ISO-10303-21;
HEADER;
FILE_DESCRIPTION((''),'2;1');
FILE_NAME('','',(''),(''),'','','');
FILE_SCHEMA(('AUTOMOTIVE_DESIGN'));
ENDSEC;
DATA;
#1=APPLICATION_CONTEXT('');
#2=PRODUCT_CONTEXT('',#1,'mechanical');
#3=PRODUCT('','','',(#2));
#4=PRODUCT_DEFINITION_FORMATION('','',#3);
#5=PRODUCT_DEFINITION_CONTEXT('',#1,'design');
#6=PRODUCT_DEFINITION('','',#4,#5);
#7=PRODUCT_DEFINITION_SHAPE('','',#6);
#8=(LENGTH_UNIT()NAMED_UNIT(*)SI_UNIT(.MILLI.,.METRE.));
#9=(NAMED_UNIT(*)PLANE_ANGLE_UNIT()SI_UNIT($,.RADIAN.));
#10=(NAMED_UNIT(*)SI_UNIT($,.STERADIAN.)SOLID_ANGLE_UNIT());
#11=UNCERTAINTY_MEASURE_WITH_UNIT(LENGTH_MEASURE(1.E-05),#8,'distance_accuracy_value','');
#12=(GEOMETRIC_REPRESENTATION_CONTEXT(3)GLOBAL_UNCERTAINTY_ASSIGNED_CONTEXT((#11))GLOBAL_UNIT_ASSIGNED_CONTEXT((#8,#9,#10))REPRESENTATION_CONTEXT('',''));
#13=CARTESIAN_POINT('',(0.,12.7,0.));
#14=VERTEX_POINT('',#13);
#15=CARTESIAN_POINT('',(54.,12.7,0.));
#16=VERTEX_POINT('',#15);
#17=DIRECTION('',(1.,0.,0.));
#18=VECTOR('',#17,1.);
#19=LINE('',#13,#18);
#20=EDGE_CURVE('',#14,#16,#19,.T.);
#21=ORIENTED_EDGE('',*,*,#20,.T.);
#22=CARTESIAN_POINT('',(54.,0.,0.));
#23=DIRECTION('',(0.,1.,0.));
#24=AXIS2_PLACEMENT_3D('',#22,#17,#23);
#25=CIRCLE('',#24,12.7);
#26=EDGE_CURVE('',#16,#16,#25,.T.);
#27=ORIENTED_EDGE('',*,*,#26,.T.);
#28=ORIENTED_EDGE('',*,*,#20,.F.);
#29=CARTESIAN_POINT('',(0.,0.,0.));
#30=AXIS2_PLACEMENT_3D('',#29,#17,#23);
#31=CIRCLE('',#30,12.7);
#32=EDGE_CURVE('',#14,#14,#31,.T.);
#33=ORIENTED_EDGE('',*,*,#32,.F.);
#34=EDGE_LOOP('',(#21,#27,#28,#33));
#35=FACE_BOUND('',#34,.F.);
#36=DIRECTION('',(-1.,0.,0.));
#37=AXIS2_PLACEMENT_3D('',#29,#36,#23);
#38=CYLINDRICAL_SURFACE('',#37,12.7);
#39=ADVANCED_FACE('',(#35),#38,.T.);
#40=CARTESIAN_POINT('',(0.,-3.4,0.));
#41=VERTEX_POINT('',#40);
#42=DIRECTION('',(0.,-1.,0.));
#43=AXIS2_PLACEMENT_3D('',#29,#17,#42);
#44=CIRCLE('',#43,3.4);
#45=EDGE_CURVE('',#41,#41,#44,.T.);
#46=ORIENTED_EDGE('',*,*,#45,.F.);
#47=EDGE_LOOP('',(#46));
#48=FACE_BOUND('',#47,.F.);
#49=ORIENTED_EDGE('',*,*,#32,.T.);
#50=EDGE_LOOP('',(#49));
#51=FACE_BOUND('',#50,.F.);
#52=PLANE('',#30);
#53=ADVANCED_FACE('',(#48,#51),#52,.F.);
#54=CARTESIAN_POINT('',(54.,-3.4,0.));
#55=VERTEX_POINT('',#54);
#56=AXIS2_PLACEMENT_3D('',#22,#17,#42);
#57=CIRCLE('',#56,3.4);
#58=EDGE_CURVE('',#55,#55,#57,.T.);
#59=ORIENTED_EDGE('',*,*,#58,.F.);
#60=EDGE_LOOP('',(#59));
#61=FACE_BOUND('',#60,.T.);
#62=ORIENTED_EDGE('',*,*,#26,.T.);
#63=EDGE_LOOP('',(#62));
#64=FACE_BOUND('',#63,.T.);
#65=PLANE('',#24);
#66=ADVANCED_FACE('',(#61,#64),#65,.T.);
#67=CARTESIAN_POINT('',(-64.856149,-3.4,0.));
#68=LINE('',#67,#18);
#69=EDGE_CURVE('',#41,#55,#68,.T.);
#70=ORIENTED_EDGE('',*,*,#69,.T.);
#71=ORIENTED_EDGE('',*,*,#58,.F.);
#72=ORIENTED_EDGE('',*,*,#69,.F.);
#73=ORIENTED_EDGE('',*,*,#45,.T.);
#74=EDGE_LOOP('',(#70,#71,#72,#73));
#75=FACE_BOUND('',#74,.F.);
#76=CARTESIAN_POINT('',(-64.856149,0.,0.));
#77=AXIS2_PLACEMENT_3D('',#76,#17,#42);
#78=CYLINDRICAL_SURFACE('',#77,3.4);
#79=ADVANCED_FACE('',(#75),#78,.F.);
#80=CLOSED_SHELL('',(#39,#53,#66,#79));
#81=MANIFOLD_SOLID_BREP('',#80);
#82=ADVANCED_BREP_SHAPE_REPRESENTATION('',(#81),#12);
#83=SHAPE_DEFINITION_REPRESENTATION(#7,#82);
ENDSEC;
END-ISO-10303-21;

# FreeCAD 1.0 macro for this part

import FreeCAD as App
import Part
import Sketcher

doc = App.newDocument("Part")
body = doc.addObject("PartDesign::Body", "Body")

sketch1 = body.newObject("Sketcher::SketchObject", "Sketch")
sketch1.AttachmentSupport = (doc.getObject("YZ_Plane"), [""])
sketch1.MapMode = "FlatFace"
sketch1.addGeometry(Part.Circle(App.Vector(0, 0, 0), App.Vector(0, 0, 1), 13), False)
sketch1.addConstraint(Sketcher.Constraint("Coincident", 0, 3, -1, 1))
sketch1.addConstraint(Sketcher.Constraint("Diameter", 0, 25.4))
pad1 = body.newObject("PartDesign::Pad", "Pad")
pad1.Profile = sketch1
pad1.Length = 54

sketch2 = body.newObject("Sketcher::SketchObject", "Sketch001")
sketch2.AttachmentSupport = (doc.getObject("YZ_Plane"), [""])
sketch2.MapMode = "FlatFace"
sketch2.addGeometry(Part.Circle(App.Vector(0, 0, 0), App.Vector(0, 0, 1), 3.4), False)
sketch2.addConstraint(Sketcher.Constraint("Coincident", 0, 3, -1, 1))
sketch2.addConstraint(Sketcher.Constraint("Diameter", 0, 6.8))
doc.recompute()
hole = body.newObject("PartDesign::Hole", "Hole")
hole.Profile = sketch2
hole.ThreadType = "None"
hole.Diameter = 6.8
hole.DepthType = "ThroughAll"
hole.Reversed = True

doc.recompute()
